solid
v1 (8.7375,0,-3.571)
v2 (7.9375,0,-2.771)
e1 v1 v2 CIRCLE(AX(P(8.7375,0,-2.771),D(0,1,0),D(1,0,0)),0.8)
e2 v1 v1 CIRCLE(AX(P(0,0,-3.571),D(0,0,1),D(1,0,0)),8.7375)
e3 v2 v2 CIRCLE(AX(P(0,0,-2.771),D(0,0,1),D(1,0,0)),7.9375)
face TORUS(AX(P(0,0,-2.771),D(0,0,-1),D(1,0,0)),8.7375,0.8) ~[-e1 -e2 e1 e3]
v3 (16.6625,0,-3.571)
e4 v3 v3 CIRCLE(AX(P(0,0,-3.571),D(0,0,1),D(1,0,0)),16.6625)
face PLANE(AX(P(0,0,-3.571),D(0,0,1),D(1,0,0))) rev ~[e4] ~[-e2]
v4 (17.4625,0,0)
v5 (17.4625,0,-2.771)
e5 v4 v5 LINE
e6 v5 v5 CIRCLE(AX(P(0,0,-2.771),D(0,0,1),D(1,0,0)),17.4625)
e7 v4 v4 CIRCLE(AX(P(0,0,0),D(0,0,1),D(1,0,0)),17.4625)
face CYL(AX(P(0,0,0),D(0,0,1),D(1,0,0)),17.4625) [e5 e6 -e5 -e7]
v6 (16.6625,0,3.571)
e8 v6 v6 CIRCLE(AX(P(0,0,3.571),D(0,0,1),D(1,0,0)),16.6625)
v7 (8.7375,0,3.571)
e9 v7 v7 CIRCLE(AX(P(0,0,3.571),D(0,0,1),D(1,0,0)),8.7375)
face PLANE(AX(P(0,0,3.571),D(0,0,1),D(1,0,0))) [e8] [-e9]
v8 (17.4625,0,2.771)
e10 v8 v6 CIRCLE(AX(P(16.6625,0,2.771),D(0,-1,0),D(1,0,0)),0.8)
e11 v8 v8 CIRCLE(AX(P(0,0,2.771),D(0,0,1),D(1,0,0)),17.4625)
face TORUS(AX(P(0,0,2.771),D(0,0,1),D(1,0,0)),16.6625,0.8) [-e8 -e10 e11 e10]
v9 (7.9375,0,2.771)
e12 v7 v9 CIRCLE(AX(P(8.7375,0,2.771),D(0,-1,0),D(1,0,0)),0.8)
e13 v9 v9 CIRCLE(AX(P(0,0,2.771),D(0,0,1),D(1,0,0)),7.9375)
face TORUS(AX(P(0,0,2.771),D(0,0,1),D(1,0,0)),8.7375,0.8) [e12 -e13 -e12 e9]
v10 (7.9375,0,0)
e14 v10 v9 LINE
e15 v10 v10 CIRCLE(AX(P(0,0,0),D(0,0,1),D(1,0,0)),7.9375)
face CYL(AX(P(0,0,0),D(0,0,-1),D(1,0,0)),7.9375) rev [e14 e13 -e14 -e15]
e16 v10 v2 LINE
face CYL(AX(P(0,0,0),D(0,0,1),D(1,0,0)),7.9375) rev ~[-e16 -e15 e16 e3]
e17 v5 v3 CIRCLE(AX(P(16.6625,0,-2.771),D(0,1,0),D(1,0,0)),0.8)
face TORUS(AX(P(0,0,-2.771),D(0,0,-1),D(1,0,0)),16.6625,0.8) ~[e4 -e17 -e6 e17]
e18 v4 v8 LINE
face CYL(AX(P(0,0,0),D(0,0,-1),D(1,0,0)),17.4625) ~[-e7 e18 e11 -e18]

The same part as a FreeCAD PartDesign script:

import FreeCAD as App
import Part
import Sketcher
Q = App.Units.Quantity


def edges_at(feature, points):
    """Names of the edges that pass closest to the given points."""
    edges = feature.Shape.Edges
    near = lambda p: min(range(len(edges)), key=lambda i: edges[i].distToShape(Part.Vertex(*p))[0])
    return sorted({f"Edge{near(p) + 1}" for p in points})

doc = App.newDocument("Part")
params = doc.addObject("Spreadsheet::Sheet", "Params")
for row, (alias, value) in enumerate([
    ("sketch1_diameter", "1.375 in"),
    ("sketch1_diameter2", "0.625 in"),
    ("pad1_length", "7.142 mm"),
    ("fillet_radius", "0.0314961 in"),
], start=1):
    params.set(f"A{row}", alias)
    params.set(f"B{row}", "=" + value)
    params.setAlias(f"B{row}", alias)

body = doc.addObject("PartDesign::Body", "Body")

# Sketch on XY plane
sketch1 = body.newObject("Sketcher::SketchObject", "Sketch")
sketch1.AttachmentSupport = (doc.getObject("XY_Plane"), [""])
sketch1.MapMode = "FlatFace"
sketch1.addGeometry(Part.Circle(App.Vector(0, 0, 0), App.Vector(0, 0, 1), 17), False)
sketch1.addGeometry(Part.Circle(App.Vector(0, 0, 0), App.Vector(0, 0, 1), 8), False)
sketch1.addConstraint(Sketcher.Constraint("Coincident", 0, 3, -1, 1))
sketch1.addConstraint(Sketcher.Constraint("Coincident", 1, 3, -1, 1))
sketch1.addConstraint(Sketcher.Constraint("Diameter", 0, Q("1.375 in")))
sketch1.addConstraint(Sketcher.Constraint("Diameter", 1, Q("0.625 in")))
sketch1.setExpression("Constraints[2]", "Params.sketch1_diameter")
sketch1.setExpression("Constraints[3]", "Params.sketch1_diameter2")
pad1 = body.newObject("PartDesign::Pad", "Pad")
pad1.Profile = sketch1
pad1.setExpression("Length", "Params.pad1_length")
pad1.Midplane = True
doc.recompute()

fillet = body.newObject("PartDesign::Fillet", "Fillet")
fillet.Base = (pad1, edges_at(pad1, [
    (-17.462, 0, 3.571),
    (-17.462, 0, -3.571),
    (-7.938, 0, 3.571),
    (-7.938, 0, -3.571),
]))
fillet.setExpression("Radius", "Params.fillet_radius")

doc.recompute()
